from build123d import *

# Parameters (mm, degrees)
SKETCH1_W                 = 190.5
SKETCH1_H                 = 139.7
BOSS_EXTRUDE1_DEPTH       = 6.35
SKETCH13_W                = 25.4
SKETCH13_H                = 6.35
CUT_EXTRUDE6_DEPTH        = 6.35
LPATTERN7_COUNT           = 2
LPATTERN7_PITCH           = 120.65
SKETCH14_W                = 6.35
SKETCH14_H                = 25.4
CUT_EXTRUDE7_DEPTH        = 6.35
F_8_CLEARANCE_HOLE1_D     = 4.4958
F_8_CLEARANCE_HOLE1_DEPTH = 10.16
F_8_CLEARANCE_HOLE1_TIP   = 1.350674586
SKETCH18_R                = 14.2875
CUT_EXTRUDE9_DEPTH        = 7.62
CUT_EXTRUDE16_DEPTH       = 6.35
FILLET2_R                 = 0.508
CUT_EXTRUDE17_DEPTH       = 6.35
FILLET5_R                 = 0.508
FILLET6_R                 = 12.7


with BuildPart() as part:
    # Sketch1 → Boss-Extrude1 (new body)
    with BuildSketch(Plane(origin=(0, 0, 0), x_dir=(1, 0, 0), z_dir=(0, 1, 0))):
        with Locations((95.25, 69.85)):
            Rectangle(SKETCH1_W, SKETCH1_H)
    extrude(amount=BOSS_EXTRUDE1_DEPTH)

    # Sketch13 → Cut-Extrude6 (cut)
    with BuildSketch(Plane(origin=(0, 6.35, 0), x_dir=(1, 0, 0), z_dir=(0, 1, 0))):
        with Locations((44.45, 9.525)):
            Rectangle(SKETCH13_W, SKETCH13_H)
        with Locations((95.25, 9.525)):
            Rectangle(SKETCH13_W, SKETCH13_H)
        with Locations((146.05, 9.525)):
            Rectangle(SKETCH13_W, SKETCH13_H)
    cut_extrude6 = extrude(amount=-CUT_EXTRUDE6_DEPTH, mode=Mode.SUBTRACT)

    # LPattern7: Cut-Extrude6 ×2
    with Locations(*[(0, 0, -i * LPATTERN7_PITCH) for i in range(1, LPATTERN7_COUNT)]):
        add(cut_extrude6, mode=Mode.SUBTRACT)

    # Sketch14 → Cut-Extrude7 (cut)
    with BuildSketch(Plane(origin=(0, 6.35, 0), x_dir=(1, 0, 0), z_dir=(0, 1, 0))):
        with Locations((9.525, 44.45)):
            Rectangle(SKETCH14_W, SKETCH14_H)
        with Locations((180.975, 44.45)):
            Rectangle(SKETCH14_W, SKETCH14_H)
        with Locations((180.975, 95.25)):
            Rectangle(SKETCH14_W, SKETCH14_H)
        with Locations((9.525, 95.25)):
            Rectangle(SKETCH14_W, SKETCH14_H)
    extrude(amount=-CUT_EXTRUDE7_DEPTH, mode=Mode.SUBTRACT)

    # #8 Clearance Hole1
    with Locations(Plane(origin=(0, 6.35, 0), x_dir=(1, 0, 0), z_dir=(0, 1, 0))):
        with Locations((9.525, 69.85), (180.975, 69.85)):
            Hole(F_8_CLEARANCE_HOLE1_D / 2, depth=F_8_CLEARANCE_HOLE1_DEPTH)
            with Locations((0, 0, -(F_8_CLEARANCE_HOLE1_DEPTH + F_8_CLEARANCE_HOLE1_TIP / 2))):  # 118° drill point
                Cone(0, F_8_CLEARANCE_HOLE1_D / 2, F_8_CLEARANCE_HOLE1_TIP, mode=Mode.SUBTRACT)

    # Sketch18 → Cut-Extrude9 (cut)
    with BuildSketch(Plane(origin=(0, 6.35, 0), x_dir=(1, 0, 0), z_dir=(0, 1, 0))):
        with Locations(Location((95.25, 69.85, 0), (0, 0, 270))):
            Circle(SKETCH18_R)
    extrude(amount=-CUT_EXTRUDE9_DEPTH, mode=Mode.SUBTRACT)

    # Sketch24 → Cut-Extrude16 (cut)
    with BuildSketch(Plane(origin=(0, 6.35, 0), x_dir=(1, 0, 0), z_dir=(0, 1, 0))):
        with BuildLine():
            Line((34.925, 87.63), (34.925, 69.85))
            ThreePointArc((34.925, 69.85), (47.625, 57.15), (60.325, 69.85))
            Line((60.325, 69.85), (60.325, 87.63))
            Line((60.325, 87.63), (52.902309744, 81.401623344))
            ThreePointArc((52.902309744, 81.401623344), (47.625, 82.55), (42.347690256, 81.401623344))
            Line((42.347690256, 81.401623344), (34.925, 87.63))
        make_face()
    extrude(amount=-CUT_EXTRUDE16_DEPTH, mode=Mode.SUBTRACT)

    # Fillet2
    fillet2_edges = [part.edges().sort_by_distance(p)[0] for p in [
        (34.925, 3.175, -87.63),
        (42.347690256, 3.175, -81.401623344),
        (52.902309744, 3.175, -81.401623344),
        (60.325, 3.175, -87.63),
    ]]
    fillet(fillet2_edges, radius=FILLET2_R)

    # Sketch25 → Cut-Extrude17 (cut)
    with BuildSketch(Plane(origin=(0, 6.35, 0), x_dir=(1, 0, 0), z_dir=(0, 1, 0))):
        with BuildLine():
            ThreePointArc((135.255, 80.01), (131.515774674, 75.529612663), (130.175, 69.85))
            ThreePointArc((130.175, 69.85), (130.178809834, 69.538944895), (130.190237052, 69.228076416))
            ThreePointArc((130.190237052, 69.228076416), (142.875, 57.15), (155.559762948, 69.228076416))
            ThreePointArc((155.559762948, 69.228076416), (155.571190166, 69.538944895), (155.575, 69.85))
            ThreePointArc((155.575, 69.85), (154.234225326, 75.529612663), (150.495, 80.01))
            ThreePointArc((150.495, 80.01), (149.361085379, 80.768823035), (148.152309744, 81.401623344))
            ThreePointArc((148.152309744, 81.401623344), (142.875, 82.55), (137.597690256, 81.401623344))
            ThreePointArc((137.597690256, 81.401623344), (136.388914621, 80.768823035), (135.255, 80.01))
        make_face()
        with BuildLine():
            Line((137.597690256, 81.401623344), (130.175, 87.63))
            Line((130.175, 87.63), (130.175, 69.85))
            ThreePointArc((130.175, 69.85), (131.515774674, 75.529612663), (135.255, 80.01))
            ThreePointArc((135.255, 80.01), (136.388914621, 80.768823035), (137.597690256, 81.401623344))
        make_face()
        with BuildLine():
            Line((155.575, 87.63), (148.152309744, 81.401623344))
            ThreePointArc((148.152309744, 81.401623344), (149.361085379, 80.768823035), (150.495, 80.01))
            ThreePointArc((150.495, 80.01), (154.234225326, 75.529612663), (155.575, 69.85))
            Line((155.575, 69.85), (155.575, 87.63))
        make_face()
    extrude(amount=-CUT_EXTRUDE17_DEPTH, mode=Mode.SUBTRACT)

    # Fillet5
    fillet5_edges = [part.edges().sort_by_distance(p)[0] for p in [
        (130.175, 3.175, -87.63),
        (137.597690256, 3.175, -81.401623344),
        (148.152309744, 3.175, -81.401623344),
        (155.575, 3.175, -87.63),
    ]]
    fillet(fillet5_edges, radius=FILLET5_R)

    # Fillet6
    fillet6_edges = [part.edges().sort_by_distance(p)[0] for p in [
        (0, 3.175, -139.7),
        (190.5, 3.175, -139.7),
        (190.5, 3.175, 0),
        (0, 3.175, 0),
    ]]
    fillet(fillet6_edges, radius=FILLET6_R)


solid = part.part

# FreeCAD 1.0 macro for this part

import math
import FreeCAD as App
import Part
import Sketcher
Q = App.Units.Quantity


def edges_at(feature, points):
    """Names of the edges that pass closest to the given points."""
    edges = feature.Shape.Edges
    near = lambda p: min(range(len(edges)), key=lambda i: edges[i].distToShape(Part.Vertex(*p))[0])
    return sorted({f"Edge{near(p) + 1}" for p in points})

doc = App.newDocument("Part")
body = doc.addObject("PartDesign::Body", "Body")

sketch1 = body.newObject("Sketcher::SketchObject", "Sketch")
sketch1.AttachmentSupport = (doc.getObject("XZ_Plane"), [""])
sketch1.MapMode = "FlatFace"
sketch1.addGeometry([
    Part.LineSegment(App.Vector(0, -140, 0), App.Vector(0, 0, 0)),
    Part.LineSegment(App.Vector(0, 0, 0), App.Vector(190, 0, 0)),
    Part.LineSegment(App.Vector(190, 0, 0), App.Vector(190, -140, 0)),
    Part.LineSegment(App.Vector(190, -140, 0), App.Vector(0, -140, 0)),
], False)
sketch1.addConstraint([
    Sketcher.Constraint("Coincident", 0, 2, 1, 1),
    Sketcher.Constraint("Coincident", 1, 2, 2, 1),
    Sketcher.Constraint("Coincident", 2, 2, 3, 1),
    Sketcher.Constraint("Coincident", 3, 2, 0, 1),
    Sketcher.Constraint("Vertical", 0),
    Sketcher.Constraint("Horizontal", 1),
    Sketcher.Constraint("Vertical", 2),
    Sketcher.Constraint("Horizontal", 3),
    Sketcher.Constraint("Coincident", 0, 2, -1, 1),
    Sketcher.Constraint("DistanceX", 1, 1, 1, 2, Q("7.5 in")),
    Sketcher.Constraint("DistanceY", 0, 1, 0, 2, Q("5.5 in")),
])
pad1 = body.newObject("PartDesign::Pad", "Pad")
pad1.Profile = sketch1
pad1.Length = Q("0.25 in")
pad1.Reversed = True

sketch2 = body.newObject("Sketcher::SketchObject", "Sketch001")
sketch2.AttachmentSupport = (doc.getObject("XZ_Plane"), [""])
sketch2.MapMode = "FlatFace"
sketch2.AttachmentOffset = App.Placement(App.Vector(0, 0, -0.25 * 25.4), App.Rotation())
sketch2.addGeometry([
    Part.LineSegment(App.Vector(32, -13, 0), App.Vector(32, -6, 0)),
    Part.LineSegment(App.Vector(32, -6, 0), App.Vector(57, -6, 0)),
    Part.LineSegment(App.Vector(57, -6, 0), App.Vector(57, -13, 0)),
    Part.LineSegment(App.Vector(57, -13, 0), App.Vector(32, -13, 0)),
    Part.LineSegment(App.Vector(83, -13, 0), App.Vector(83, -6, 0)),
    Part.LineSegment(App.Vector(83, -6, 0), App.Vector(108, -6, 0)),
    Part.LineSegment(App.Vector(108, -6, 0), App.Vector(108, -13, 0)),
    Part.LineSegment(App.Vector(108, -13, 0), App.Vector(83, -13, 0)),
    Part.LineSegment(App.Vector(133, -13, 0), App.Vector(133, -6, 0)),
    Part.LineSegment(App.Vector(133, -6, 0), App.Vector(159, -6, 0)),
    Part.LineSegment(App.Vector(159, -6, 0), App.Vector(159, -13, 0)),
    Part.LineSegment(App.Vector(159, -13, 0), App.Vector(133, -13, 0)),
], False)
sketch2.addConstraint([
    Sketcher.Constraint("Coincident", 0, 2, 1, 1),
    Sketcher.Constraint("Coincident", 1, 2, 2, 1),
    Sketcher.Constraint("Coincident", 2, 2, 3, 1),
    Sketcher.Constraint("Coincident", 3, 2, 0, 1),
    Sketcher.Constraint("Coincident", 4, 2, 5, 1),
    Sketcher.Constraint("Coincident", 5, 2, 6, 1),
    Sketcher.Constraint("Coincident", 6, 2, 7, 1),
    Sketcher.Constraint("Coincident", 7, 2, 4, 1),
    Sketcher.Constraint("Coincident", 8, 2, 9, 1),
    Sketcher.Constraint("Coincident", 9, 2, 10, 1),
    Sketcher.Constraint("Coincident", 10, 2, 11, 1),
    Sketcher.Constraint("Coincident", 11, 2, 8, 1),
    Sketcher.Constraint("Vertical", 0),
    Sketcher.Constraint("Horizontal", 1),
    Sketcher.Constraint("Vertical", 2),
    Sketcher.Constraint("Horizontal", 3),
    Sketcher.Constraint("Vertical", 4),
    Sketcher.Constraint("Horizontal", 5),
    Sketcher.Constraint("Vertical", 6),
    Sketcher.Constraint("Horizontal", 7),
    Sketcher.Constraint("Vertical", 8),
    Sketcher.Constraint("Horizontal", 9),
    Sketcher.Constraint("Vertical", 10),
    Sketcher.Constraint("Horizontal", 11),
    Sketcher.Constraint("Horizontal", 1, 2, 4, 2),
    Sketcher.Constraint("Horizontal", 3, 2, 6, 2),
    Sketcher.Constraint("Horizontal", 5, 2, 8, 2),
    Sketcher.Constraint("Horizontal", 7, 2, 10, 2),
    Sketcher.Constraint("Equal", 3, 5),
    Sketcher.Constraint("Equal", 7, 9),
    Sketcher.Constraint("DistanceX", 1, 1, 1, 2, Q("1 in")),
    Sketcher.Constraint("DistanceX", 1, 2, 4, 2, Q("1 in")),
    Sketcher.Constraint("DistanceX", 5, 2, 8, 2, Q("1 in")),
    Sketcher.Constraint("DistanceY", 0, 1, 0, 2, Q("0.25 in")),
    Sketcher.Constraint("DistanceY", 2, 2, -1, 1, Q("0.5 in")),
    Sketcher.Constraint("DistanceX", -1, 1, 0, 2, Q("1.25 in")),
])
pocket1 = body.newObject("PartDesign::Pocket", "Pocket")
pocket1.Profile = sketch2
pocket1.Length = Q("0.25 in")
pocket1.Reversed = True
doc.recompute()

linearpattern = body.newObject("PartDesign::LinearPattern", "LinearPattern")
linearpattern.Originals = [pocket1]
linearpattern.Direction = (doc.getObject("Z_Axis"), [""])
linearpattern.Mode = "offset"
linearpattern.Offset = Q("4.75 in")
linearpattern.Occurrences = 2
linearpattern.Reversed = True
body.Tip = linearpattern

sketch3 = body.newObject("Sketcher::SketchObject", "Sketch002")
sketch3.AttachmentSupport = (doc.getObject("XZ_Plane"), [""])
sketch3.MapMode = "FlatFace"
sketch3.AttachmentOffset = App.Placement(App.Vector(0, 0, -0.25 * 25.4), App.Rotation())
sketch3.addGeometry([
    Part.LineSegment(App.Vector(6, -57, 0), App.Vector(6, -32, 0)),
    Part.LineSegment(App.Vector(6, -32, 0), App.Vector(13, -32, 0)),
    Part.LineSegment(App.Vector(13, -32, 0), App.Vector(13, -57, 0)),
    Part.LineSegment(App.Vector(13, -57, 0), App.Vector(6, -57, 0)),
    Part.LineSegment(App.Vector(178, -57, 0), App.Vector(178, -32, 0)),
    Part.LineSegment(App.Vector(178, -32, 0), App.Vector(184, -32, 0)),
    Part.LineSegment(App.Vector(184, -32, 0), App.Vector(184, -57, 0)),
    Part.LineSegment(App.Vector(184, -57, 0), App.Vector(178, -57, 0)),
    Part.LineSegment(App.Vector(178, -108, 0), App.Vector(178, -83, 0)),
    Part.LineSegment(App.Vector(178, -83, 0), App.Vector(184, -83, 0)),
    Part.LineSegment(App.Vector(184, -83, 0), App.Vector(184, -108, 0)),
    Part.LineSegment(App.Vector(184, -108, 0), App.Vector(178, -108, 0)),
    Part.LineSegment(App.Vector(6, -108, 0), App.Vector(6, -83, 0)),
    Part.LineSegment(App.Vector(6, -83, 0), App.Vector(13, -83, 0)),
    Part.LineSegment(App.Vector(13, -83, 0), App.Vector(13, -108, 0)),
    Part.LineSegment(App.Vector(13, -108, 0), App.Vector(6, -108, 0)),
], False)
sketch3.addConstraint([
    Sketcher.Constraint("Coincident", 0, 2, 1, 1),
    Sketcher.Constraint("Coincident", 1, 2, 2, 1),
    Sketcher.Constraint("Coincident", 2, 2, 3, 1),
    Sketcher.Constraint("Coincident", 3, 2, 0, 1),
    Sketcher.Constraint("Coincident", 4, 2, 5, 1),
    Sketcher.Constraint("Coincident", 5, 2, 6, 1),
    Sketcher.Constraint("Coincident", 6, 2, 7, 1),
    Sketcher.Constraint("Coincident", 7, 2, 4, 1),
    Sketcher.Constraint("Coincident", 8, 2, 9, 1),
    Sketcher.Constraint("Coincident", 9, 2, 10, 1),
    Sketcher.Constraint("Coincident", 10, 2, 11, 1),
    Sketcher.Constraint("Coincident", 11, 2, 8, 1),
    Sketcher.Constraint("Coincident", 12, 2, 13, 1),
    Sketcher.Constraint("Coincident", 13, 2, 14, 1),
    Sketcher.Constraint("Coincident", 14, 2, 15, 1),
    Sketcher.Constraint("Coincident", 15, 2, 12, 1),
    Sketcher.Constraint("Vertical", 0),
    Sketcher.Constraint("Horizontal", 1),
    Sketcher.Constraint("Vertical", 2),
    Sketcher.Constraint("Horizontal", 3),
    Sketcher.Constraint("Vertical", 4),
    Sketcher.Constraint("Horizontal", 5),
    Sketcher.Constraint("Vertical", 6),
    Sketcher.Constraint("Horizontal", 7),
    Sketcher.Constraint("Vertical", 8),
    Sketcher.Constraint("Horizontal", 9),
    Sketcher.Constraint("Vertical", 10),
    Sketcher.Constraint("Horizontal", 11),
    Sketcher.Constraint("Vertical", 12),
    Sketcher.Constraint("Horizontal", 13),
    Sketcher.Constraint("Vertical", 14),
    Sketcher.Constraint("Horizontal", 15),
    Sketcher.Constraint("Horizontal", 1, 2, 4, 2),
    Sketcher.Constraint("Horizontal", 3, 2, 6, 2),
    Sketcher.Constraint("Horizontal", 9, 2, 12, 2),
    Sketcher.Constraint("Horizontal", 11, 2, 14, 2),
    Sketcher.Constraint("Vertical", 7, 2, 8, 2),
    Sketcher.Constraint("Vertical", 6, 2, 9, 2),
    Sketcher.Constraint("Vertical", 3, 2, 12, 2),
    Sketcher.Constraint("Vertical", 2, 2, 13, 2),
    Sketcher.Constraint("Equal", 3, 5),
    Sketcher.Constraint("Equal", 6, 8),
    Sketcher.Constraint("DistanceY", 0, 1, 0, 2, Q("1 in")),
    Sketcher.Constraint("DistanceX", -1, 1, 4, 2, Q("7 in")),
    Sketcher.Constraint("DistanceX", 0, 2, 5, 2, Q("7 in")),
    Sketcher.Constraint("DistanceY", 8, 2, 7, 2, Q("1 in")),
    Sketcher.Constraint("DistanceX", 1, 1, 1, 2, Q("0.25 in")),
    Sketcher.Constraint("DistanceY", 0, 2, -1, 1, Q("1.25 in")),
])
pocket2 = body.newObject("PartDesign::Pocket", "Pocket001")
pocket2.Profile = sketch3
pocket2.Length = Q("0.25 in")
pocket2.Reversed = True

sketch4 = body.newObject("Sketcher::SketchObject", "Sketch003")
sketch4.AttachmentSupport = (doc.getObject("XZ_Plane"), [""])
sketch4.MapMode = "FlatFace"
sketch4.AttachmentOffset = App.Placement(App.Vector(0, 0, -0.25 * 25.4), App.Rotation())
sketch4.addGeometry([
    Part.Circle(App.Vector(9.5, -69.8, 0), App.Vector(0, 0, 1), 2.2),
    Part.Circle(App.Vector(181, -69.8, 0), App.Vector(0, 0, 1), 2.2),
], False)
sketch4.addConstraint([
    Sketcher.Constraint("Equal", 0, 1),
    Sketcher.Constraint("Horizontal", 0, 3, 1, 3),
    Sketcher.Constraint("Diameter", 0, Q("0.177 in")),
    Sketcher.Constraint("DistanceY", 0, 3, -1, 1, Q("2.75 in")),
    Sketcher.Constraint("DistanceX", 0, 3, 1, 3, Q("6.75 in")),
    Sketcher.Constraint("DistanceX", -1, 1, 0, 3, Q("0.375 in")),
])
doc.recompute()
hole = body.newObject("PartDesign::Hole", "Hole")
hole.Profile = sketch4
hole.ThreadType = "None"
hole.Diameter = Q("0.177 in")
hole.DepthType = "Dimension"
hole.Depth = Q("0.4 in")
hole.DrillPoint = "Angled"
hole.DrillPointAngle = 118
hole.Reversed = True

sketch5 = body.newObject("Sketcher::SketchObject", "Sketch004")
sketch5.AttachmentSupport = (doc.getObject("XZ_Plane"), [""])
sketch5.MapMode = "FlatFace"
sketch5.AttachmentOffset = App.Placement(App.Vector(0, 0, -0.25 * 25.4), App.Rotation())
sketch5.addGeometry(Part.Circle(App.Vector(95, -70, 0), App.Vector(0, 0, 1), 14), False)
sketch5.addConstraint([
    Sketcher.Constraint("Diameter", 0, Q("1.125 in")),
    Sketcher.Constraint("DistanceX", -1, 1, 0, 3, Q("3.75 in")),
    Sketcher.Constraint("DistanceY", 0, 3, -1, 1, Q("2.75 in")),
])
pocket3 = body.newObject("PartDesign::Pocket", "Pocket002")
pocket3.Profile = sketch5
pocket3.Length = Q("0.3 in")
pocket3.Reversed = True

sketch6 = body.newObject("Sketcher::SketchObject", "Sketch005")
sketch6.AttachmentSupport = (doc.getObject("XZ_Plane"), [""])
sketch6.MapMode = "FlatFace"
sketch6.AttachmentOffset = App.Placement(App.Vector(0, 0, -0.25 * 25.4), App.Rotation())
sketch6.addGeometry([
    Part.LineSegment(App.Vector(35, -88, 0), App.Vector(35, -70, 0)),
    Part.ArcOfCircle(Part.Circle(App.Vector(48, -70, 0), App.Vector(0, 0, 1), 13), math.radians(0), math.radians(180)),
    Part.LineSegment(App.Vector(60, -70, 0), App.Vector(60, -88, 0)),
    Part.LineSegment(App.Vector(60, -88, 0), App.Vector(53, -81, 0)),
    Part.ArcOfCircle(Part.Circle(App.Vector(48, -70, 0), App.Vector(0, 0, 1), 13), math.radians(-115), math.radians(-65)),
    Part.LineSegment(App.Vector(42, -81, 0), App.Vector(35, -88, 0)),
], False)
sketch6.addConstraint([
    Sketcher.Constraint("Tangent", 0, 2, 1, 2),
    Sketcher.Constraint("Tangent", 1, 1, 2, 1),
    Sketcher.Constraint("Coincident", 2, 2, 3, 1),
    Sketcher.Constraint("Coincident", 3, 2, 4, 2),
    Sketcher.Constraint("Coincident", 4, 1, 5, 1),
    Sketcher.Constraint("Coincident", 5, 2, 0, 1),
    Sketcher.Constraint("Vertical", 0),
    Sketcher.Constraint("Vertical", 2),
    Sketcher.Constraint("Coincident", 4, 3, 1, 3),
    Sketcher.Constraint("Equal", 1, 4),
    Sketcher.Constraint("Horizontal", 3, 2, 4, 1),
    Sketcher.Constraint("Horizontal", 2, 2, 5, 2),
    Sketcher.Constraint("Radius", 1, Q("0.5 in")),
    Sketcher.Constraint("DistanceY", 0, 1, 0, 2, Q("0.7 in")),
    Sketcher.Constraint("Angle", 3, Q("140 deg")),
    Sketcher.Constraint("DistanceY", 1, 3, -1, 1, Q("2.75 in")),
    Sketcher.Constraint("DistanceX", -1, 1, 1, 3, Q("1.875 in")),
])
pocket4 = body.newObject("PartDesign::Pocket", "Pocket003")
pocket4.Profile = sketch6
pocket4.Length = Q("0.25 in")
pocket4.Reversed = True
doc.recompute()

fillet = body.newObject("PartDesign::Fillet", "Fillet")
fillet.Base = (pocket4, edges_at(pocket4, [
    (34.925, 3.175, -87.63),
    (42.348, 3.175, -81.402),
    (52.902, 3.175, -81.402),
    (60.325, 3.175, -87.63),
]))
fillet.Radius = Q("0.02 in")

sketch7 = body.newObject("Sketcher::SketchObject", "Sketch006")
sketch7.AttachmentSupport = (doc.getObject("XZ_Plane"), [""])
sketch7.MapMode = "FlatFace"
sketch7.AttachmentOffset = App.Placement(App.Vector(0, 0, -0.25 * 25.4), App.Rotation())
sketch7.addGeometry([
    Part.ArcOfCircle(Part.Circle(App.Vector(142.9, -69.8, 0), App.Vector(0, 0, 1), 12.7), math.radians(177.19), math.radians(180)),
    Part.ArcOfCircle(Part.Circle(App.Vector(142.9, -69.8, 0), App.Vector(0, 0, 1), 12.7), math.radians(3), math.radians(177)),
    Part.ArcOfCircle(Part.Circle(App.Vector(142.9, -69.8, 0), App.Vector(0, 0, 1), 12.7), math.radians(0), math.radians(2.81)),
    Part.LineSegment(App.Vector(155.6, -69.8, 0), App.Vector(155.6, -87.6, 0)),
    Part.LineSegment(App.Vector(155.6, -87.6, 0), App.Vector(148.2, -81.4, 0)),
    Part.ArcOfCircle(Part.Circle(App.Vector(142.9, -69.8, 0), App.Vector(0, 0, 1), 12.7), math.radians(-115), math.radians(-65)),
    Part.LineSegment(App.Vector(137.6, -81.4, 0), App.Vector(130.2, -87.6, 0)),
    Part.LineSegment(App.Vector(130.2, -87.6, 0), App.Vector(130.2, -69.8, 0)),
], False)
sketch7.addConstraint([
    Sketcher.Constraint("Tangent", 0, 1, 1, 2),
    Sketcher.Constraint("Tangent", 1, 1, 2, 2),
    Sketcher.Constraint("Tangent", 2, 1, 3, 1),
    Sketcher.Constraint("Coincident", 3, 2, 4, 1),
    Sketcher.Constraint("Coincident", 4, 2, 5, 2),
    Sketcher.Constraint("Coincident", 5, 1, 6, 1),
    Sketcher.Constraint("Coincident", 6, 2, 7, 1),
    Sketcher.Constraint("Tangent", 7, 2, 0, 2),
    Sketcher.Constraint("Vertical", 3),
    Sketcher.Constraint("Vertical", 7),
    Sketcher.Constraint("Coincident", 2, 3, 0, 3),
    Sketcher.Constraint("Coincident", 5, 3, 0, 3),
    Sketcher.Constraint("Equal", 2, 5),
    Sketcher.Constraint("Horizontal", 0, 1, 1, 1),
    Sketcher.Constraint("Horizontal", 4, 2, 5, 1),
    Sketcher.Constraint("Horizontal", 3, 2, 6, 2),
    Sketcher.Constraint("Radius", 0, Q("0.4999999 in")),
    Sketcher.Constraint("DistanceY", 3, 2, 3, 1, Q("0.7 in")),
    Sketcher.Constraint("Angle", 4, Q("140 deg")),
    Sketcher.Constraint("DistanceY", 0, 3, -1, 1, Q("2.75 in")),
    Sketcher.Constraint("DistanceX", -1, 1, 0, 3, Q("5.6249999 in")),
    Sketcher.Constraint("DistanceX", -1, 1, 0, 1, Q("5.1255999 in")),
])
pocket5 = body.newObject("PartDesign::Pocket", "Pocket004")
pocket5.Profile = sketch7
pocket5.Length = Q("0.25 in")
pocket5.Reversed = True
doc.recompute()

fillet2 = body.newObject("PartDesign::Fillet", "Fillet001")
fillet2.Base = (pocket5, edges_at(pocket5, [
    (130.175, 3.175, -87.63),
    (137.598, 3.175, -81.402),
    (148.152, 3.175, -81.402),
    (155.575, 3.175, -87.63),
]))
fillet2.Radius = Q("0.02 in")
doc.recompute()

fillet3 = body.newObject("PartDesign::Fillet", "Fillet002")
fillet3.Base = (fillet2, edges_at(fillet2, [
    (0, 3.175, -139.7),
    (190.5, 3.175, -139.7),
    (190.5, 3.175, 0),
    (0, 3.175, 0),
]))
fillet3.Radius = Q("0.5 in")

doc.recompute()
